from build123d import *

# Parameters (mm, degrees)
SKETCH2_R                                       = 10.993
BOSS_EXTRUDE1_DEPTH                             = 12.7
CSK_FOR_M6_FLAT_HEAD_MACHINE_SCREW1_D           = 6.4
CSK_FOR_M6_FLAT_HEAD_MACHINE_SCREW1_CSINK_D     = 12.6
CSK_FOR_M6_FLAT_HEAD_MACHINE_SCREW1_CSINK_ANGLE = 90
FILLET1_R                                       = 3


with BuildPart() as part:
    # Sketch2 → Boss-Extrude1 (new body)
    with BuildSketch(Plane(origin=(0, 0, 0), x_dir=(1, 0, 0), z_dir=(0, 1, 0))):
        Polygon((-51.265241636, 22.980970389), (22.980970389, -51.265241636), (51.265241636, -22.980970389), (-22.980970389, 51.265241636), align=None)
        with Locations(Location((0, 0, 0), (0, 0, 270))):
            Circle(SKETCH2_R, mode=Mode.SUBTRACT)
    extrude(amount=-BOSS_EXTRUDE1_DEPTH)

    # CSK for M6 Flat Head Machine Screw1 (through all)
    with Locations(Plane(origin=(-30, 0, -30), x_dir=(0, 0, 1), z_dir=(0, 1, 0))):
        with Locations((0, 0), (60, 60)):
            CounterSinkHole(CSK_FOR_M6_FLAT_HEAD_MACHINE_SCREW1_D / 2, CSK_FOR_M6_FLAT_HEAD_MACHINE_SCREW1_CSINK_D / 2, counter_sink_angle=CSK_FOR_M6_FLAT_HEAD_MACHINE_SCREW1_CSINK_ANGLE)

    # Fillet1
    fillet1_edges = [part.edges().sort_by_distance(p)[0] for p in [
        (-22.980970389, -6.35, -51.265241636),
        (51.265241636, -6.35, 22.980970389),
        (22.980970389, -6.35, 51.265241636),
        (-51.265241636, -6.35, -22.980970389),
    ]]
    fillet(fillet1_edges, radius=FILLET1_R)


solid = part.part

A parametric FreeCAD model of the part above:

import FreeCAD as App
import Part
import Sketcher
from FreeCAD import Vector
Q = App.Units.Quantity


def edges_at(feature, points):
    """Names of the edges that pass closest to the given points."""
    edges = feature.Shape.Edges
    near = lambda p: min(range(len(edges)), key=lambda i: edges[i].distToShape(Part.Vertex(*p))[0])
    return sorted({f"Edge{near(p) + 1}" for p in points})


def add_polygon(sketch, points):
    """Adds a closed chain of lines whose ends are joined by coincident constraints."""
    first, n = sketch.GeometryCount, len(points)
    for a, b in zip(points, points[1:] + points[:1]):
        sketch.addGeometry(Part.LineSegment(App.Vector(*a, 0), App.Vector(*b, 0)), False)
    for i in range(n):
        sketch.addConstraint(Sketcher.Constraint("Coincident", first + i, 2, first + (i + 1) % n, 1))

doc = App.newDocument("Part")
params = doc.addObject("Spreadsheet::Sheet", "Params")
for row, (alias, value) in enumerate([
    ("sketch1_length", "105 mm"),
    ("sketch1_length2", "40 mm"),
    ("pad1_length", "12.7 mm"),
    ("sketch2_diameter", "6.4 mm"),
    ("hole_diameter", "6.4 mm"),
    ("hole_csink_diameter", "12.6 mm"),
    ("fillet_radius", "3 mm"),
], start=1):
    params.set(f"A{row}", alias)
    params.set(f"B{row}", "=" + value)
    params.setAlias(f"B{row}", alias)

body = doc.addObject("PartDesign::Body", "Body")

# Sketch on XZ plane
sketch1 = body.newObject("Sketcher::SketchObject", "Sketch")
sketch1.AttachmentSupport = (doc.getObject("XZ_Plane"), [""])
sketch1.MapMode = "FlatFace"
add_polygon(sketch1, [(-51.265242, -22.98097), (22.98097, 51.265242), (51.265242, 22.98097), (-22.98097, -51.265242)])  # lines 0-3
sketch1.addGeometry(Part.Circle(Vector(0, 0, 0), Vector(0, 0, 1), 10.993), False)  # 4
sketch1.addConstraint(Sketcher.Constraint("Coincident", 4, 3, -1, 1))
sketch1.addConstraint(Sketcher.Constraint("Symmetric", 0, 2, 2, 2, -1, 1))
sketch1.addConstraint(Sketcher.Constraint("Symmetric", 1, 2, 3, 2, -1, 1))
sketch1.addConstraint(Sketcher.Constraint("Perpendicular", 0, 1))
sketch1.addConstraint(Sketcher.Constraint("Angle", 0, Q("45 deg")))
sketch1.addConstraint(Sketcher.Constraint("Distance", 0, 105.0))
sketch1.addConstraint(Sketcher.Constraint("Distance", 1, 40.0))
sketch1.addConstraint(Sketcher.Constraint("Diameter", 4, 21.986))
sketch1.setExpression("Constraints[9]", "Params.sketch1_length")
sketch1.setExpression("Constraints[10]", "Params.sketch1_length2")
pad1 = body.newObject("PartDesign::Pad", "Pad")
pad1.Profile = sketch1
pad1.setExpression("Length", "Params.pad1_length")

# Sketch on XZ plane
sketch2 = body.newObject("Sketcher::SketchObject", "Sketch001")
sketch2.AttachmentSupport = (doc.getObject("XZ_Plane"), [""])
sketch2.MapMode = "FlatFace"
sketch2.addGeometry(Part.Circle(Vector(-30, -30, 0), Vector(0, 0, 1), 3.2), False)
sketch2.addGeometry(Part.Circle(Vector(30, 30, 0), Vector(0, 0, 1), 3.2), False)
sketch2.addConstraint(Sketcher.Constraint("Equal", 0, 1))
sketch2.addConstraint(Sketcher.Constraint("Symmetric", 0, 3, 1, 3, -1, 1))
sketch2.addConstraint(Sketcher.Constraint("Diameter", 0, 6.4))
sketch2.addConstraint(Sketcher.Constraint("DistanceX", 0, 3, -1, 1, 30.0))
sketch2.addConstraint(Sketcher.Constraint("DistanceY", 0, 3, -1, 1, 30.0))
sketch2.setExpression("Constraints[2]", "Params.sketch2_diameter")
doc.recompute()
hole = body.newObject("PartDesign::Hole", "Hole")
hole.Profile = sketch2
hole.ThreadType = "None"
hole.setExpression("Diameter", "Params.hole_diameter")
hole.DepthType = "ThroughAll"
hole.HoleCutType = "Countersink"
hole.setExpression("HoleCutDiameter", "Params.hole_csink_diameter")
hole.HoleCutCountersinkAngle = 90
hole.Reversed = True
doc.recompute()

fillet = body.newObject("PartDesign::Fillet", "Fillet")
fillet.Base = (hole, edges_at(hole, [
    (-22.981, -6.35, -51.265),
    (51.265, -6.35, 22.981),
    (22.981, -6.35, 51.265),
    (-51.265, -6.35, -22.981),
]))
fillet.setExpression("Radius", "Params.fillet_radius")

doc.recompute()
